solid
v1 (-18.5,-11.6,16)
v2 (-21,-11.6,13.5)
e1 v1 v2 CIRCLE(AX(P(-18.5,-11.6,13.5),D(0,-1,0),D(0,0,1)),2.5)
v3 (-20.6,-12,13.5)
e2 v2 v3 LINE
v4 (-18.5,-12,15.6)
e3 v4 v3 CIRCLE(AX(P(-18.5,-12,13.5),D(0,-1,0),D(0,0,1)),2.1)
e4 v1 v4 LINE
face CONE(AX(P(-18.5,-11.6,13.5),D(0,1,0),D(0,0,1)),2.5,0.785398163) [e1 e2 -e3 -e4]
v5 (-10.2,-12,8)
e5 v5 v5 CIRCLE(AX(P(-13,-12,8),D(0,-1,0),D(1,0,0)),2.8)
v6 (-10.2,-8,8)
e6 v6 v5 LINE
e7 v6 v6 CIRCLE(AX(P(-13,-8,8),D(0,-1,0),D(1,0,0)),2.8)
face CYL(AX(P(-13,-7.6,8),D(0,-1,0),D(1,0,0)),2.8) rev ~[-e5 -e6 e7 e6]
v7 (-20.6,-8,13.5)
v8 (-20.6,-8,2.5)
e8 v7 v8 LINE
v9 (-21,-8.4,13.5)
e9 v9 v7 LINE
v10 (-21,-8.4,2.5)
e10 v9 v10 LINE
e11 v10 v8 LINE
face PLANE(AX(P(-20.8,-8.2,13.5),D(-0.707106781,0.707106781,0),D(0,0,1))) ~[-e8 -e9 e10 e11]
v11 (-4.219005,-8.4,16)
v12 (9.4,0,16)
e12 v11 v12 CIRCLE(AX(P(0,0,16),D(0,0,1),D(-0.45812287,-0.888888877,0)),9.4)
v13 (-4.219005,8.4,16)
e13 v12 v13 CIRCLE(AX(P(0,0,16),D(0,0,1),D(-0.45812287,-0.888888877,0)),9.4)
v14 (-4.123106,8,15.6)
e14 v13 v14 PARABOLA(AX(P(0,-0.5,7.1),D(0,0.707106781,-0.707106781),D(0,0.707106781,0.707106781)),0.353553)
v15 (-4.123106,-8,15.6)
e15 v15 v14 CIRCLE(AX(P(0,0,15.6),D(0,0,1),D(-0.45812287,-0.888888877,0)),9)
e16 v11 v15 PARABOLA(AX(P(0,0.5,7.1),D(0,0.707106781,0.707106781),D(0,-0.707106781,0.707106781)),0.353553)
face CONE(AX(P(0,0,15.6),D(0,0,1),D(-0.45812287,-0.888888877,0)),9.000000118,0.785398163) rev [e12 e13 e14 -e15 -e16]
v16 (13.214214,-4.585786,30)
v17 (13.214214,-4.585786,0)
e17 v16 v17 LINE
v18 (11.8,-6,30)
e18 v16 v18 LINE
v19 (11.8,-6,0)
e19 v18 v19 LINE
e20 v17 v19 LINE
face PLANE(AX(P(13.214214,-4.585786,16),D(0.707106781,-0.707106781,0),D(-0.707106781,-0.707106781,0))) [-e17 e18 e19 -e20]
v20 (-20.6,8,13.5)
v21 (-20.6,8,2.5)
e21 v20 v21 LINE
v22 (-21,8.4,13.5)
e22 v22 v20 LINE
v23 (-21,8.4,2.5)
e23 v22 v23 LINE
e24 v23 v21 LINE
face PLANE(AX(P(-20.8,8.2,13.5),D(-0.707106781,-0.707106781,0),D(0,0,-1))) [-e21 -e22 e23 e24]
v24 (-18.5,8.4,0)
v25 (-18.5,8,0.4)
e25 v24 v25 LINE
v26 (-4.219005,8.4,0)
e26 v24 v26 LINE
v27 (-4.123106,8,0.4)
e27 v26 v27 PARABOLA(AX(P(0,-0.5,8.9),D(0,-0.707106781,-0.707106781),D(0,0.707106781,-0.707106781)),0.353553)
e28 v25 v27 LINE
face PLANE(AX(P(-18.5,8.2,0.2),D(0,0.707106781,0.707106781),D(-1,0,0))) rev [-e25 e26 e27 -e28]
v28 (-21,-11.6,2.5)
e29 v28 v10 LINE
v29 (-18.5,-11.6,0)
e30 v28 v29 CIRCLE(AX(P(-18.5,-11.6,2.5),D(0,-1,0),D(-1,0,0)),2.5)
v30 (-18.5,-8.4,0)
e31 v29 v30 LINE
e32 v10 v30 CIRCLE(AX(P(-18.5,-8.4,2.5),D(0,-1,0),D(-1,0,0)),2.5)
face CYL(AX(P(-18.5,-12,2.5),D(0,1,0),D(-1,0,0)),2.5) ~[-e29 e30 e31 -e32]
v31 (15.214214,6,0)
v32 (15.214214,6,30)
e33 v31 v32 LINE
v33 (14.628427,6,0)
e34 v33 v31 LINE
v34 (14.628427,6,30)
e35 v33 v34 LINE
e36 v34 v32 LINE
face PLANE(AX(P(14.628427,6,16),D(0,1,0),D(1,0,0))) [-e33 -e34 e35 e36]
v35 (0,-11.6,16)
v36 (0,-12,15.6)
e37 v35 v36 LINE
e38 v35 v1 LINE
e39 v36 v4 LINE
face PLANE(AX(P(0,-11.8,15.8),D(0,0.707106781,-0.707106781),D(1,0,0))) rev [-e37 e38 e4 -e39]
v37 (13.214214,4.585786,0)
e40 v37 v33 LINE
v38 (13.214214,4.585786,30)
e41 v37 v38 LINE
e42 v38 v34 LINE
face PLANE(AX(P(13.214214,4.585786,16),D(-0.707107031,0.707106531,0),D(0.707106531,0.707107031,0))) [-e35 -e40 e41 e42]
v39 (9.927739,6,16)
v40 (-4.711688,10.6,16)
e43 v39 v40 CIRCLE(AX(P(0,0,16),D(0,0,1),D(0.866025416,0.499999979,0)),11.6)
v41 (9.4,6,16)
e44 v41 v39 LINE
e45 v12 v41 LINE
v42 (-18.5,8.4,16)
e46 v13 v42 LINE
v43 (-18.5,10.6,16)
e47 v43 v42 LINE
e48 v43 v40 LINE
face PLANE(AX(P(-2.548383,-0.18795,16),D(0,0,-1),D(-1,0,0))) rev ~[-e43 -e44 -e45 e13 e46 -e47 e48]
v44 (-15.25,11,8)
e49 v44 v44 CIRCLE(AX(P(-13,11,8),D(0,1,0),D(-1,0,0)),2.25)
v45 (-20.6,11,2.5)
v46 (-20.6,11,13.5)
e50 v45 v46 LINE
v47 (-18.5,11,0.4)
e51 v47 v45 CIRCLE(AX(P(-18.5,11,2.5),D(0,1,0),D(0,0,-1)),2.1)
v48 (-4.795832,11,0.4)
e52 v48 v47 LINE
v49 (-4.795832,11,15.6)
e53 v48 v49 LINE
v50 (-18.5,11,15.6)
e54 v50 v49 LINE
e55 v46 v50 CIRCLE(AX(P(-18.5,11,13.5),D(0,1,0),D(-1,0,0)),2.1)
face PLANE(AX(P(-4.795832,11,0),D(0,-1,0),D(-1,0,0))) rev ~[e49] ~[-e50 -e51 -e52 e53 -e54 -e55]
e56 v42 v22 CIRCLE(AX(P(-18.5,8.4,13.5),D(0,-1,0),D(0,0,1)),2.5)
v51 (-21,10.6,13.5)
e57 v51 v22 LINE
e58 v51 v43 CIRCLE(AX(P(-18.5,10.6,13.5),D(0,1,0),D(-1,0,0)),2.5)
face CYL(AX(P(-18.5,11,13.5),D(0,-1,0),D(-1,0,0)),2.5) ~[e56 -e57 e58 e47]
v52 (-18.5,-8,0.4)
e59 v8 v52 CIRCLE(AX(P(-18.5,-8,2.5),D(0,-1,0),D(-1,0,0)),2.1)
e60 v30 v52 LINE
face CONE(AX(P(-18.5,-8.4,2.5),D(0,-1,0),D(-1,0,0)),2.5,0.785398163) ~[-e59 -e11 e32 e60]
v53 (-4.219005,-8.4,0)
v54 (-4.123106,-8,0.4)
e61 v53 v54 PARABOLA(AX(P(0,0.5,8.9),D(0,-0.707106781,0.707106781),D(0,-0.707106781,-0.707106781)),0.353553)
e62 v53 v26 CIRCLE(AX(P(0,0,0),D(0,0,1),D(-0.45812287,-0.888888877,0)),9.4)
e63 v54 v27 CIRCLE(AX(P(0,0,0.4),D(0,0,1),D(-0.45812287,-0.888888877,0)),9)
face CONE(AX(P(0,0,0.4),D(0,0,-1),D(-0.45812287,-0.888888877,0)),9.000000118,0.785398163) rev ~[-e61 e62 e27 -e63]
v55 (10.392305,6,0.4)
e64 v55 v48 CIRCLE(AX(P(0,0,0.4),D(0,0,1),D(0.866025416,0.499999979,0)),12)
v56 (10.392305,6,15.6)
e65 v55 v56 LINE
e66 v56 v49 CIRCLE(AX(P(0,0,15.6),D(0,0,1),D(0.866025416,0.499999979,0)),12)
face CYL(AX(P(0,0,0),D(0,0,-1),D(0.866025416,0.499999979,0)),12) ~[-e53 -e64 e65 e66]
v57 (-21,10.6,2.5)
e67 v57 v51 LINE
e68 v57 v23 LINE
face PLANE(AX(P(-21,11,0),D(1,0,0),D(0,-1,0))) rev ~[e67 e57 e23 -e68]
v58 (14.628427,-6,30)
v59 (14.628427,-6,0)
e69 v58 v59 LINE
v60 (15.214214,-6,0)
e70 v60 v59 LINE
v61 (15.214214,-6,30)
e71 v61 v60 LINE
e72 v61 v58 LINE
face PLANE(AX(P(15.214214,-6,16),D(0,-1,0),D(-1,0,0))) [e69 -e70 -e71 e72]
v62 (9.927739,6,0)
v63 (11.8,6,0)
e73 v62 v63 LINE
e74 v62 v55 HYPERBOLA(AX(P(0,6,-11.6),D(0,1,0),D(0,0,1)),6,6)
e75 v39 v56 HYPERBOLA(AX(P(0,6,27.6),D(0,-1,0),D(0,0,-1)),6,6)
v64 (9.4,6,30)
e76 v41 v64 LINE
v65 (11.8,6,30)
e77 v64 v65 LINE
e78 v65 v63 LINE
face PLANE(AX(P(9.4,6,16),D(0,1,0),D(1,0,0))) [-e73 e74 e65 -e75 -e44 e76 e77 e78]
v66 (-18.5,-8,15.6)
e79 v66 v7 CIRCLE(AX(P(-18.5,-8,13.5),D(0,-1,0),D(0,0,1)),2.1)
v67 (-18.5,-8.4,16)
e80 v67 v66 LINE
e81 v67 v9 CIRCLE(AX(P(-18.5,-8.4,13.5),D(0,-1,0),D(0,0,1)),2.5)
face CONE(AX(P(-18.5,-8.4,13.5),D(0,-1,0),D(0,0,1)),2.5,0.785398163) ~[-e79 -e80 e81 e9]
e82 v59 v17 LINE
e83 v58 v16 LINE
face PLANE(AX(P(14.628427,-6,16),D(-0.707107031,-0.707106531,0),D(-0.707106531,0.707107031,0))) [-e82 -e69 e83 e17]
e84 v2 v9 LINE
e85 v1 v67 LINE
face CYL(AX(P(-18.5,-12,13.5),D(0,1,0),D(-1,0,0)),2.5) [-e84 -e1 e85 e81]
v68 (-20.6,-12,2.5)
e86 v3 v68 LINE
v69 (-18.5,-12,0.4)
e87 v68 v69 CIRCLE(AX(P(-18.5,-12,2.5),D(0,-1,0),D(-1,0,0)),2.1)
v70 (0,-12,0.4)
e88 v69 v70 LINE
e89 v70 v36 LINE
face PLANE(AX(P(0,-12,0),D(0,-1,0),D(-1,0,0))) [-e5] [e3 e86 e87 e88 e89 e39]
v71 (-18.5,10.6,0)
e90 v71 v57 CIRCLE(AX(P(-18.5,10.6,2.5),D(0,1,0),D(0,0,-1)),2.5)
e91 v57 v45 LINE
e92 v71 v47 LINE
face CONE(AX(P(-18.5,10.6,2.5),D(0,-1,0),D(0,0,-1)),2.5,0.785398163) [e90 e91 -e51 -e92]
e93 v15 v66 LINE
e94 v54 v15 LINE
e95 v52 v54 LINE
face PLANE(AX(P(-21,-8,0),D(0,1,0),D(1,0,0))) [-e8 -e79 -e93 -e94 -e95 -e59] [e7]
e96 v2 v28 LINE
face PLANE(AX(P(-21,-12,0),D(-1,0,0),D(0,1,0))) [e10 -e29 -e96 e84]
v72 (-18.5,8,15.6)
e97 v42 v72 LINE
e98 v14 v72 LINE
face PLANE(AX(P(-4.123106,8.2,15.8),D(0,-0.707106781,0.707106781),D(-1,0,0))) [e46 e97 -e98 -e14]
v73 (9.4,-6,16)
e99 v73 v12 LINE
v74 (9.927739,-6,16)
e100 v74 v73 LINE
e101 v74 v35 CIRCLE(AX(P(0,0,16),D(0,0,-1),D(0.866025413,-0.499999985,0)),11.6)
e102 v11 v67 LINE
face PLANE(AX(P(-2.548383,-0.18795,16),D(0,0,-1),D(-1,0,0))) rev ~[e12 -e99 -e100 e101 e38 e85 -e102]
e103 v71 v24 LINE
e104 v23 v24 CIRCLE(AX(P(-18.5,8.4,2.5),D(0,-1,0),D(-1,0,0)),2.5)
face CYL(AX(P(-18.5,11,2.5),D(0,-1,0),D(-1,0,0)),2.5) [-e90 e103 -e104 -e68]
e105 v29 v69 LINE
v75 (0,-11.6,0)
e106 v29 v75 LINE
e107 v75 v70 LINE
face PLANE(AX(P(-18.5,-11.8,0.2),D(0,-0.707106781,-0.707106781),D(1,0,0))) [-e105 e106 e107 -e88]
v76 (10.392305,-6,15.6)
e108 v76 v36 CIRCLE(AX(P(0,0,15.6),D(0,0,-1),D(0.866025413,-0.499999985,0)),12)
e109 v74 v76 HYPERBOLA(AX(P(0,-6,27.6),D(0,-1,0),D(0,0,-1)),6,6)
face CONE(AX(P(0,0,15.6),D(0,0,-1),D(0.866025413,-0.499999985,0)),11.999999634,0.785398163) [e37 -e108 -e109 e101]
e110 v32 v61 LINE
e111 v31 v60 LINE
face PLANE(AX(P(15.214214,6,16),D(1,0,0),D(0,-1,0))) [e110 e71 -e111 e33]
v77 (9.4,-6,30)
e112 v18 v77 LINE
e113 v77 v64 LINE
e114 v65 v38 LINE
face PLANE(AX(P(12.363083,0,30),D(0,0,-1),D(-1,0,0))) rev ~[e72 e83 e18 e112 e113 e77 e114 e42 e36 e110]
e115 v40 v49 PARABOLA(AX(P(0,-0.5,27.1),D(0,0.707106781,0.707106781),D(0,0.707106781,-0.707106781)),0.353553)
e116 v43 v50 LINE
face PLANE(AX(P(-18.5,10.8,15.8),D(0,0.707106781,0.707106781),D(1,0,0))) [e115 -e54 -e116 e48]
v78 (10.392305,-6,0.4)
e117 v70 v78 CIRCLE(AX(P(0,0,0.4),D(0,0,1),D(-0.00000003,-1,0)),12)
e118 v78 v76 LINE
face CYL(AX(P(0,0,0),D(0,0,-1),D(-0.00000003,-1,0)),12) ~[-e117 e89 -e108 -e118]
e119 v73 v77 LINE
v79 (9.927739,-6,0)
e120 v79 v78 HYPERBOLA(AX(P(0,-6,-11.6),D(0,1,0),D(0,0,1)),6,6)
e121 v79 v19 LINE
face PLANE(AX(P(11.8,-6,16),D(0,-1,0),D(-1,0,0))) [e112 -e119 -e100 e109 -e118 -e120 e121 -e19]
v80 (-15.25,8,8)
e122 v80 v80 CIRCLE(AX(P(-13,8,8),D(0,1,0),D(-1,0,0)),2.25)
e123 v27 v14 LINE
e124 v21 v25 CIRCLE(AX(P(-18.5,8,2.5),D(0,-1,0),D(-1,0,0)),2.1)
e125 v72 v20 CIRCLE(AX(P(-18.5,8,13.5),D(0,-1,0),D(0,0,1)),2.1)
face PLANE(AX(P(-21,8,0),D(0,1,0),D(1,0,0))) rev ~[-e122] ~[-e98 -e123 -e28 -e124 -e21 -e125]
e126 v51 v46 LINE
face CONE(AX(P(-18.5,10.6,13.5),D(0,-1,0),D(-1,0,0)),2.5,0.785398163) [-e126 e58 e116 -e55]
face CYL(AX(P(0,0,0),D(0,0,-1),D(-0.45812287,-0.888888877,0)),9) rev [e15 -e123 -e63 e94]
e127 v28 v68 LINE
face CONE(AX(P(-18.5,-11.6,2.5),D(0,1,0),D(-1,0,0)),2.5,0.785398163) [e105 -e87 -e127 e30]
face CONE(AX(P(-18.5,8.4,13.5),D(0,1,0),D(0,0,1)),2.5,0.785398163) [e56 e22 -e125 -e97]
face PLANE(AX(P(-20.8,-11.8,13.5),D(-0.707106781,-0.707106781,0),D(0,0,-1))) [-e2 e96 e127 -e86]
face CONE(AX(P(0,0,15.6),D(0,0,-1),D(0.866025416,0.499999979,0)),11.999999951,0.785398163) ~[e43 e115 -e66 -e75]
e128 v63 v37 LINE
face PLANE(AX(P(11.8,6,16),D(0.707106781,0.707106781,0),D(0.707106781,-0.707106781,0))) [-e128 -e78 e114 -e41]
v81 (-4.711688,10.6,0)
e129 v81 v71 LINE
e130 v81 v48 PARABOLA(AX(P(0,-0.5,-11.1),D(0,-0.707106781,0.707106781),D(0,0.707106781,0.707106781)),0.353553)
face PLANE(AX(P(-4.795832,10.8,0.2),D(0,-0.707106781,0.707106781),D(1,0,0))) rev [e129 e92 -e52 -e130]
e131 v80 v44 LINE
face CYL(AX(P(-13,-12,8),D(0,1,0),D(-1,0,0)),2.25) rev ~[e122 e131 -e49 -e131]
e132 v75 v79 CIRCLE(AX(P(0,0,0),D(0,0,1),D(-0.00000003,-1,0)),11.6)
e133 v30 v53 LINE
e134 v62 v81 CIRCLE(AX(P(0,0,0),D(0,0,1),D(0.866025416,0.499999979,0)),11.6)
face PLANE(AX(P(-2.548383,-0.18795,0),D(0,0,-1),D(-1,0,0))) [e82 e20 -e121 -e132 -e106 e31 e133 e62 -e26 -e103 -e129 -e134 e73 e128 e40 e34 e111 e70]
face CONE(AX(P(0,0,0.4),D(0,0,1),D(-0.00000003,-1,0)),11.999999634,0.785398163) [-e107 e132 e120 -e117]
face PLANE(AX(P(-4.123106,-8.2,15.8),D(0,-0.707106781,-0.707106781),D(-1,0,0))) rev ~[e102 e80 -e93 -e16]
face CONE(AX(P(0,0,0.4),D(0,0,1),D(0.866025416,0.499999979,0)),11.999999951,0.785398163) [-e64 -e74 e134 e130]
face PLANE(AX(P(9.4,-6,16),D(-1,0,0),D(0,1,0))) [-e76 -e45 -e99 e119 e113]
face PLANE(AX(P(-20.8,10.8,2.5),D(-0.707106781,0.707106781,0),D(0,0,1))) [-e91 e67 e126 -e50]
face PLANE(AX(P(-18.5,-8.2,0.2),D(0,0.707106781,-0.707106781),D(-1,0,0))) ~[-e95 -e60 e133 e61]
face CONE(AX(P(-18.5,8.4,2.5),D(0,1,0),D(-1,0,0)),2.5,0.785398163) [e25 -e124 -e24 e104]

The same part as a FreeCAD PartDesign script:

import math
import FreeCAD as App
import Part
import Sketcher


def edges_at(feature, points):
    """Names of the edges that pass closest to the given points."""
    edges = feature.Shape.Edges
    near = lambda p: min(range(len(edges)), key=lambda i: edges[i].distToShape(Part.Vertex(*p))[0])
    return sorted({f"Edge{near(p) + 1}" for p in points})

doc = App.newDocument("Part")
params = doc.addObject("Spreadsheet::Sheet", "Params")
for row, (alias, value) in enumerate([
    ("sketch1_radius", "12 mm"),
    ("sketch1_radius2", "9 mm"),
    ("sketch1_width", "21 mm"),
    ("sketch1_height", "3 mm"),
    ("sketch1_height2", "4 mm"),
    ("pad1_length", "16 mm"),
    ("fillet_radius", "2.5 mm"),
    ("sketch2_diameter", "4.5 mm"),
    ("hole_diameter", "4.5 mm"),
    ("hole_cbore_diameter", "5.6 mm"),
    ("hole_cbore_depth", "4.4 mm"),
    ("chamfer_size", "0.4 mm"),
    ("sketch3_height", "12 mm"),
    ("sketch3_length", "2 mm"),
    ("sketch3_width", "2.4 mm"),
    ("pad2_length", "14 mm"),
], start=1):
    params.set(f"A{row}", alias)
    params.set(f"B{row}", "=" + value)
    params.setAlias(f"B{row}", alias)

body = doc.addObject("PartDesign::Body", "Body")

# Sketch on XY plane
sketch1 = body.newObject("Sketcher::SketchObject", "Sketch")
sketch1.AttachmentSupport = (doc.getObject("XY_Plane"), [""])
sketch1.MapMode = "FlatFace"
sketch1.addGeometry([
    Part.LineSegment(App.Vector(11.8, 6, 0), App.Vector(10.4, 6, 0)),  # 0
    Part.ArcOfCircle(Part.Circle(App.Vector(0, 0, 0), App.Vector(0, 0, 1), 12), math.radians(30), math.radians(114)),  # 1
    Part.LineSegment(App.Vector(-4.8, 11, 0), App.Vector(-21, 11, 0)),  # 2
    Part.LineSegment(App.Vector(-21, 11, 0), App.Vector(-21, 8, 0)),  # 3
    Part.LineSegment(App.Vector(-21, 8, 0), App.Vector(-4.1, 8, 0)),  # 4
    Part.ArcOfCircle(Part.Circle(App.Vector(0, 0, 0), App.Vector(0, 0, 1), 9), math.radians(-117), math.radians(117)),  # 5
    Part.LineSegment(App.Vector(-4.1, -8, 0), App.Vector(-21, -8, 0)),  # 6
    Part.LineSegment(App.Vector(-21, -8, 0), App.Vector(-21, -12, 0)),  # 7
    Part.LineSegment(App.Vector(-21, -12, 0), App.Vector(0, -12, 0)),  # 8
    Part.ArcOfCircle(Part.Circle(App.Vector(0, 0, 0), App.Vector(0, 0, 1), 12), math.radians(-90), math.radians(-30)),  # 9
    Part.LineSegment(App.Vector(10.4, -6, 0), App.Vector(11.8, -6, 0)),  # 10
    Part.LineSegment(App.Vector(11.8, -6, 0), App.Vector(13.2, -4.6, 0)),  # 11
    Part.LineSegment(App.Vector(13.2, -4.6, 0), App.Vector(14.6, -6, 0)),  # 12
    Part.LineSegment(App.Vector(14.6, -6, 0), App.Vector(15.2, -6, 0)),  # 13
    Part.LineSegment(App.Vector(15.2, -6, 0), App.Vector(15.2, 6, 0)),  # 14
    Part.LineSegment(App.Vector(15.2, 6, 0), App.Vector(14.6, 6, 0)),  # 15
    Part.LineSegment(App.Vector(14.6, 6, 0), App.Vector(13.2, 4.6, 0)),  # 16
    Part.LineSegment(App.Vector(13.2, 4.6, 0), App.Vector(11.8, 6, 0)),  # 17
], False)
sketch1.addConstraint([
    Sketcher.Constraint("Coincident", 0, 2, 1, 1),
    Sketcher.Constraint("Coincident", 1, 2, 2, 1),
    Sketcher.Constraint("Coincident", 2, 2, 3, 1),
    Sketcher.Constraint("Coincident", 3, 2, 4, 1),
    Sketcher.Constraint("Coincident", 4, 2, 5, 2),
    Sketcher.Constraint("Coincident", 5, 1, 6, 1),
    Sketcher.Constraint("Coincident", 6, 2, 7, 1),
    Sketcher.Constraint("Coincident", 7, 2, 8, 1),
    Sketcher.Constraint("Tangent", 8, 2, 9, 1),
    Sketcher.Constraint("Coincident", 9, 2, 10, 1),
    Sketcher.Constraint("Coincident", 10, 2, 11, 1),
    Sketcher.Constraint("Coincident", 11, 2, 12, 1),
    Sketcher.Constraint("Coincident", 12, 2, 13, 1),
    Sketcher.Constraint("Coincident", 13, 2, 14, 1),
    Sketcher.Constraint("Coincident", 14, 2, 15, 1),
    Sketcher.Constraint("Coincident", 15, 2, 16, 1),
    Sketcher.Constraint("Coincident", 16, 2, 17, 1),
    Sketcher.Constraint("Coincident", 17, 2, 0, 1),
    Sketcher.Constraint("Horizontal", 0),
    Sketcher.Constraint("Horizontal", 2),
    Sketcher.Constraint("Vertical", 3),
    Sketcher.Constraint("Horizontal", 4),
    Sketcher.Constraint("Horizontal", 6),
    Sketcher.Constraint("Vertical", 7),
    Sketcher.Constraint("Horizontal", 8),
    Sketcher.Constraint("Horizontal", 10),
    Sketcher.Constraint("Horizontal", 13),
    Sketcher.Constraint("Vertical", 14),
    Sketcher.Constraint("Horizontal", 15),
    Sketcher.Constraint("Coincident", 1, 3, -1, 1),
    Sketcher.Constraint("Coincident", 5, 3, -1, 1),
    Sketcher.Constraint("Coincident", 9, 3, -1, 1),
    Sketcher.Constraint("Equal", 1, 9),
    Sketcher.Constraint("Symmetric", 3, 2, 6, 2, -1),
    Sketcher.Constraint("Symmetric", 12, 2, 15, 2, -1),
    Sketcher.Constraint("Symmetric", 11, 2, 16, 2, -1),
    Sketcher.Constraint("Symmetric", 10, 2, 17, 2, -1),
    Sketcher.Constraint("Perpendicular", 11, 12),
    Sketcher.Constraint("Perpendicular", 12, 16),
    Sketcher.Constraint("Horizontal", 10, 2, 12, 2),
    Sketcher.Constraint("Radius", 1, 12.0),
    Sketcher.Constraint("Radius", 5, 9.0),
    Sketcher.Constraint("DistanceX", 8, 1, 8, 2, 21.0),
    Sketcher.Constraint("DistanceY", 3, 2, 3, 1, 3.0),
    Sketcher.Constraint("DistanceY", 7, 2, 7, 1, 4.0),
    Sketcher.Constraint("DistanceY", 14, 1, 14, 2, 12.0),
    Sketcher.Constraint("Distance", 11, 2.000001),
    Sketcher.Constraint("DistanceX", 11, 2, 13, 2, 2.0),
    Sketcher.Constraint("DistanceX", -1, 1, 10, 2, 11.8),
])
sketch1.setExpression("Constraints[40]", "Params.sketch1_radius")
sketch1.setExpression("Constraints[41]", "Params.sketch1_radius2")
sketch1.setExpression("Constraints[42]", "Params.sketch1_width")
sketch1.setExpression("Constraints[43]", "Params.sketch1_height")
sketch1.setExpression("Constraints[44]", "Params.sketch1_height2")
pad1 = body.newObject("PartDesign::Pad", "Pad")
pad1.Profile = sketch1
pad1.setExpression("Length", "Params.pad1_length")
doc.recompute()

fillet = body.newObject("PartDesign::Fillet", "Fillet")
fillet.Base = (pad1, edges_at(pad1, [
    (-21, 9.5, 16),
    (-21, -10, 16),
    (-21, -10, 0),
    (-21, 9.5, 0),
]))
fillet.setExpression("Radius", "Params.fillet_radius")

# Sketch on XZ plane
sketch2 = body.newObject("Sketcher::SketchObject", "Sketch001")
sketch2.AttachmentSupport = (doc.getObject("XZ_Plane"), [""])
sketch2.MapMode = "FlatFace"
sketch2.AttachmentOffset = App.Placement(App.Vector(0, 0, 12), App.Rotation())
sketch2.addGeometry(Part.Circle(App.Vector(-13, 8, 0), App.Vector(0, 0, 1), 2.2), False)
sketch2.addConstraint([
    Sketcher.Constraint("Diameter", 0, 4.5),
    Sketcher.Constraint("DistanceX", 0, 3, -1, 1, 13.0),
    Sketcher.Constraint("DistanceY", -1, 1, 0, 3, 8.0),
])
sketch2.setExpression("Constraints[0]", "Params.sketch2_diameter")
doc.recompute()
hole = body.newObject("PartDesign::Hole", "Hole")
hole.Profile = sketch2
hole.ThreadType = "None"
hole.setExpression("Diameter", "Params.hole_diameter")
hole.DepthType = "ThroughAll"
hole.HoleCutType = "Counterbore"
hole.setExpression("HoleCutDiameter", "Params.hole_cbore_diameter")
hole.setExpression("HoleCutDepth", "Params.hole_cbore_depth")
doc.recompute()

chamfer = body.newObject("PartDesign::Chamfer", "Chamfer")
chamfer.Base = (hole, edges_at(hole, [
    (9, 0, 0),
    (9, 0, 16),
    (-11.312, 8, 0),
    (-11.312, -8, 0),
    (3.752, 11.398, 0),
    (-11.648, 11, 0),
    (6, -10.392, 0),
    (-9.25, -12, 0),
    (3.752, 11.398, 16),
    (6, -10.392, 16),
]))
chamfer.setExpression("Size", "Params.chamfer_size")

# Sketch on XY plane
sketch3 = body.newObject("Sketcher::SketchObject", "Sketch002")
sketch3.AttachmentSupport = (doc.getObject("XY_Plane"), [""])
sketch3.MapMode = "FlatFace"
sketch3.AttachmentOffset = App.Placement(App.Vector(0, 0, 16), App.Rotation())
sketch3.addGeometry([
    Part.LineSegment(App.Vector(15.2, -6, 0), App.Vector(15.2, 6, 0)),  # 0
    Part.LineSegment(App.Vector(15.2, 6, 0), App.Vector(14.6, 6, 0)),  # 1
    Part.LineSegment(App.Vector(14.6, 6, 0), App.Vector(13.2, 4.6, 0)),  # 2
    Part.LineSegment(App.Vector(13.2, 4.6, 0), App.Vector(11.8, 6, 0)),  # 3
    Part.LineSegment(App.Vector(11.8, 6, 0), App.Vector(9.4, 6, 0)),  # 4
    Part.LineSegment(App.Vector(9.4, 6, 0), App.Vector(9.4, -6, 0)),  # 5
    Part.LineSegment(App.Vector(9.4, -6, 0), App.Vector(11.8, -6, 0)),  # 6
    Part.LineSegment(App.Vector(11.8, -6, 0), App.Vector(13.2, -4.6, 0)),  # 7
    Part.LineSegment(App.Vector(13.2, -4.6, 0), App.Vector(14.6, -6, 0)),  # 8
    Part.LineSegment(App.Vector(14.6, -6, 0), App.Vector(15.2, -6, 0)),  # 9
], False)
sketch3.addConstraint([
    Sketcher.Constraint("Coincident", 0, 2, 1, 1),
    Sketcher.Constraint("Coincident", 1, 2, 2, 1),
    Sketcher.Constraint("Coincident", 2, 2, 3, 1),
    Sketcher.Constraint("Coincident", 3, 2, 4, 1),
    Sketcher.Constraint("Coincident", 4, 2, 5, 1),
    Sketcher.Constraint("Coincident", 5, 2, 6, 1),
    Sketcher.Constraint("Coincident", 6, 2, 7, 1),
    Sketcher.Constraint("Coincident", 7, 2, 8, 1),
    Sketcher.Constraint("Coincident", 8, 2, 9, 1),
    Sketcher.Constraint("Coincident", 9, 2, 0, 1),
    Sketcher.Constraint("Vertical", 0),
    Sketcher.Constraint("Horizontal", 1),
    Sketcher.Constraint("Horizontal", 4),
    Sketcher.Constraint("Vertical", 5),
    Sketcher.Constraint("Horizontal", 6),
    Sketcher.Constraint("Horizontal", 9),
    Sketcher.Constraint("Symmetric", 3, 2, 6, 2, -1),
    Sketcher.Constraint("Symmetric", 2, 2, 7, 2, -1),
    Sketcher.Constraint("Symmetric", 1, 2, 8, 2, -1),
    Sketcher.Constraint("Perpendicular", 2, 3),
    Sketcher.Constraint("Perpendicular", 3, 7),
    Sketcher.Constraint("Horizontal", 1, 2, 3, 2),
    Sketcher.Constraint("DistanceY", 0, 1, 0, 2, 12.0),
    Sketcher.Constraint("Distance", 2, 2.0),
    Sketcher.Constraint("DistanceX", 4, 2, 4, 1, 2.4),
    Sketcher.Constraint("DistanceX", 2, 2, 0, 2, 2.0),
    Sketcher.Constraint("DistanceX", -1, 1, 3, 2, 11.8),
])
sketch3.setExpression("Constraints[22]", "Params.sketch3_height")
sketch3.setExpression("Constraints[23]", "Params.sketch3_length")
sketch3.setExpression("Constraints[24]", "Params.sketch3_width")
pad2 = body.newObject("PartDesign::Pad", "Pad001")
pad2.Profile = sketch3
pad2.setExpression("Length", "Params.pad2_length")

doc.recompute()
